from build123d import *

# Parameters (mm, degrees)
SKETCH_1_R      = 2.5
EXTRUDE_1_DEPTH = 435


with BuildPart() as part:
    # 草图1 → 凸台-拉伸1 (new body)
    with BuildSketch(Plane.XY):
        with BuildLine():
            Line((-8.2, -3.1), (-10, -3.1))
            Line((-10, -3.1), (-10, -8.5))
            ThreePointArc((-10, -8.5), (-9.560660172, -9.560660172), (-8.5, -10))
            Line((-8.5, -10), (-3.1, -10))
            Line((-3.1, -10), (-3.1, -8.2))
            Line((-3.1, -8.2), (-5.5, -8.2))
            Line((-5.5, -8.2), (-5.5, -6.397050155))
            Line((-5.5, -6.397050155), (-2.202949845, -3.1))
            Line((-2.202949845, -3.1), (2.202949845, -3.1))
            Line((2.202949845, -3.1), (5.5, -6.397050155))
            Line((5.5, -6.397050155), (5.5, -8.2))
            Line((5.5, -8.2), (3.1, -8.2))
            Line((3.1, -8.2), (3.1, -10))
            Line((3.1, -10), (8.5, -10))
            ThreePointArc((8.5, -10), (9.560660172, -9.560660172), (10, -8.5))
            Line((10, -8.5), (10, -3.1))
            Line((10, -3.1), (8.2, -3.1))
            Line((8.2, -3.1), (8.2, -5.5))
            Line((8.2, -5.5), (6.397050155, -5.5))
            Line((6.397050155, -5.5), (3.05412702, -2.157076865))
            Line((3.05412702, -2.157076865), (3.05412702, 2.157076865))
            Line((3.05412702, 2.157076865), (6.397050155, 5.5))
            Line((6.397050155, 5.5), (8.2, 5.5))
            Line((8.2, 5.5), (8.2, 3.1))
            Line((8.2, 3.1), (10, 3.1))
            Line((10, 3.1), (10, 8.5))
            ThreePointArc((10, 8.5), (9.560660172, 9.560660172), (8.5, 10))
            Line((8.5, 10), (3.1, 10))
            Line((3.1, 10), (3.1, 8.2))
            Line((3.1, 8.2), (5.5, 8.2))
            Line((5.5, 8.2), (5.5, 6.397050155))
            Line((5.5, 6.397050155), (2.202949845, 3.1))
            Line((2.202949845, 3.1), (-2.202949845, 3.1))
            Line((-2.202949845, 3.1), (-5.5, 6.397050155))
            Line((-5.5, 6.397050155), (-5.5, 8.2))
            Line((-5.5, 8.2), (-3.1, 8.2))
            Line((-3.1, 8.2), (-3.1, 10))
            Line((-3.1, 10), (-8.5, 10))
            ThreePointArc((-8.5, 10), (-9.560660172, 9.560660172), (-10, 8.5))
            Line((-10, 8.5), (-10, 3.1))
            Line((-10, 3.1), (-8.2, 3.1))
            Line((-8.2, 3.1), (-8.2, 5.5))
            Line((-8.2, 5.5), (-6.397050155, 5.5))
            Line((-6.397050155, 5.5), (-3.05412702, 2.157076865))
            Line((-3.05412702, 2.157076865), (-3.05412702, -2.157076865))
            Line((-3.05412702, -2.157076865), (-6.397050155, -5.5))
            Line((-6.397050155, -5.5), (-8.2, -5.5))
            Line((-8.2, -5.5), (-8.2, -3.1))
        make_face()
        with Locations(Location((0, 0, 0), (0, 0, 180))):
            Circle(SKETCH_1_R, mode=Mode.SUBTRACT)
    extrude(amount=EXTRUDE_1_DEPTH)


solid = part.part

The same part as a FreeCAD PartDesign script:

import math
import FreeCAD as App
import Part
import Sketcher
from FreeCAD import Vector

doc = App.newDocument("Part")
body = doc.addObject("PartDesign::Body", "Body")

sketch1 = body.newObject("Sketcher::SketchObject", "Sketch")
sketch1.AttachmentSupport = (doc.getObject("XY_Plane"), [""])
sketch1.MapMode = "FlatFace"
sketch1.addGeometry([
    Part.LineSegment(Vector(-8.2, -3.1, 0), Vector(-10, -3.1, 0)),
    Part.LineSegment(Vector(-10, -3.1, 0), Vector(-10, -8.5, 0)),
    Part.ArcOfCircle(Part.Circle(Vector(-8.5, -8.5, 0), Vector(0, 0, 1), 1.5), math.radians(180), math.radians(270)),
    Part.LineSegment(Vector(-8.5, -10, 0), Vector(-3.1, -10, 0)),
    Part.LineSegment(Vector(-3.1, -10, 0), Vector(-3.1, -8.2, 0)),
    Part.LineSegment(Vector(-3.1, -8.2, 0), Vector(-5.5, -8.2, 0)),
    Part.LineSegment(Vector(-5.5, -8.2, 0), Vector(-5.5, -6.4, 0)),
    Part.LineSegment(Vector(-5.5, -6.4, 0), Vector(-2.2, -3.1, 0)),
    Part.LineSegment(Vector(-2.2, -3.1, 0), Vector(2.2, -3.1, 0)),
    Part.LineSegment(Vector(2.2, -3.1, 0), Vector(5.5, -6.4, 0)),
    Part.LineSegment(Vector(5.5, -6.4, 0), Vector(5.5, -8.2, 0)),
    Part.LineSegment(Vector(5.5, -8.2, 0), Vector(3.1, -8.2, 0)),
    Part.LineSegment(Vector(3.1, -8.2, 0), Vector(3.1, -10, 0)),
    Part.LineSegment(Vector(3.1, -10, 0), Vector(8.5, -10, 0)),
    Part.ArcOfCircle(Part.Circle(Vector(8.5, -8.5, 0), Vector(0, 0, 1), 1.5), math.radians(-90), math.radians(0)),
    Part.LineSegment(Vector(10, -8.5, 0), Vector(10, -3.1, 0)),
    Part.LineSegment(Vector(10, -3.1, 0), Vector(8.2, -3.1, 0)),
    Part.LineSegment(Vector(8.2, -3.1, 0), Vector(8.2, -5.5, 0)),
    Part.LineSegment(Vector(8.2, -5.5, 0), Vector(6.4, -5.5, 0)),
    Part.LineSegment(Vector(6.4, -5.5, 0), Vector(3.1, -2.2, 0)),
    Part.LineSegment(Vector(3.1, -2.2, 0), Vector(3.1, 2.2, 0)),
    Part.LineSegment(Vector(3.1, 2.2, 0), Vector(6.4, 5.5, 0)),
    Part.LineSegment(Vector(6.4, 5.5, 0), Vector(8.2, 5.5, 0)),
    Part.LineSegment(Vector(8.2, 5.5, 0), Vector(8.2, 3.1, 0)),
    Part.LineSegment(Vector(8.2, 3.1, 0), Vector(10, 3.1, 0)),
    Part.LineSegment(Vector(10, 3.1, 0), Vector(10, 8.5, 0)),
    Part.ArcOfCircle(Part.Circle(Vector(8.5, 8.5, 0), Vector(0, 0, 1), 1.5), math.radians(0), math.radians(90)),
    Part.LineSegment(Vector(8.5, 10, 0), Vector(3.1, 10, 0)),
    Part.LineSegment(Vector(3.1, 10, 0), Vector(3.1, 8.2, 0)),
    Part.LineSegment(Vector(3.1, 8.2, 0), Vector(5.5, 8.2, 0)),
    Part.LineSegment(Vector(5.5, 8.2, 0), Vector(5.5, 6.4, 0)),
    Part.LineSegment(Vector(5.5, 6.4, 0), Vector(2.2, 3.1, 0)),
    Part.LineSegment(Vector(2.2, 3.1, 0), Vector(-2.2, 3.1, 0)),
    Part.LineSegment(Vector(-2.2, 3.1, 0), Vector(-5.5, 6.4, 0)),
    Part.LineSegment(Vector(-5.5, 6.4, 0), Vector(-5.5, 8.2, 0)),
    Part.LineSegment(Vector(-5.5, 8.2, 0), Vector(-3.1, 8.2, 0)),
    Part.LineSegment(Vector(-3.1, 8.2, 0), Vector(-3.1, 10, 0)),
    Part.LineSegment(Vector(-3.1, 10, 0), Vector(-8.5, 10, 0)),
    Part.ArcOfCircle(Part.Circle(Vector(-8.5, 8.5, 0), Vector(0, 0, 1), 1.5), math.radians(90), math.radians(180)),
    Part.LineSegment(Vector(-10, 8.5, 0), Vector(-10, 3.1, 0)),
    Part.LineSegment(Vector(-10, 3.1, 0), Vector(-8.2, 3.1, 0)),
    Part.LineSegment(Vector(-8.2, 3.1, 0), Vector(-8.2, 5.5, 0)),
    Part.LineSegment(Vector(-8.2, 5.5, 0), Vector(-6.4, 5.5, 0)),
    Part.LineSegment(Vector(-6.4, 5.5, 0), Vector(-3.1, 2.2, 0)),
    Part.LineSegment(Vector(-3.1, 2.2, 0), Vector(-3.1, -2.2, 0)),
    Part.LineSegment(Vector(-3.1, -2.2, 0), Vector(-6.4, -5.5, 0)),
    Part.LineSegment(Vector(-6.4, -5.5, 0), Vector(-8.2, -5.5, 0)),
    Part.LineSegment(Vector(-8.2, -5.5, 0), Vector(-8.2, -3.1, 0)),
    Part.Circle(Vector(0, 0, 0), Vector(0, 0, 1), 2.5),
], False)
sketch1.addConstraint([
    Sketcher.Constraint("Coincident", 0, 2, 1, 1),
    Sketcher.Constraint("Tangent", 1, 2, 2, 1),
    Sketcher.Constraint("Tangent", 2, 2, 3, 1),
    Sketcher.Constraint("Coincident", 3, 2, 4, 1),
    Sketcher.Constraint("Coincident", 4, 2, 5, 1),
    Sketcher.Constraint("Coincident", 5, 2, 6, 1),
    Sketcher.Constraint("Coincident", 6, 2, 7, 1),
    Sketcher.Constraint("Coincident", 7, 2, 8, 1),
    Sketcher.Constraint("Coincident", 8, 2, 9, 1),
    Sketcher.Constraint("Coincident", 9, 2, 10, 1),
    Sketcher.Constraint("Coincident", 10, 2, 11, 1),
    Sketcher.Constraint("Coincident", 11, 2, 12, 1),
    Sketcher.Constraint("Coincident", 12, 2, 13, 1),
    Sketcher.Constraint("Tangent", 13, 2, 14, 1),
    Sketcher.Constraint("Tangent", 14, 2, 15, 1),
    Sketcher.Constraint("Coincident", 15, 2, 16, 1),
    Sketcher.Constraint("Coincident", 16, 2, 17, 1),
    Sketcher.Constraint("Coincident", 17, 2, 18, 1),
    Sketcher.Constraint("Coincident", 18, 2, 19, 1),
    Sketcher.Constraint("Coincident", 19, 2, 20, 1),
    Sketcher.Constraint("Coincident", 20, 2, 21, 1),
    Sketcher.Constraint("Coincident", 21, 2, 22, 1),
    Sketcher.Constraint("Coincident", 22, 2, 23, 1),
    Sketcher.Constraint("Coincident", 23, 2, 24, 1),
    Sketcher.Constraint("Coincident", 24, 2, 25, 1),
    Sketcher.Constraint("Tangent", 25, 2, 26, 1),
    Sketcher.Constraint("Tangent", 26, 2, 27, 1),
    Sketcher.Constraint("Coincident", 27, 2, 28, 1),
    Sketcher.Constraint("Coincident", 28, 2, 29, 1),
    Sketcher.Constraint("Coincident", 29, 2, 30, 1),
    Sketcher.Constraint("Coincident", 30, 2, 31, 1),
    Sketcher.Constraint("Coincident", 31, 2, 32, 1),
    Sketcher.Constraint("Coincident", 32, 2, 33, 1),
    Sketcher.Constraint("Coincident", 33, 2, 34, 1),
    Sketcher.Constraint("Coincident", 34, 2, 35, 1),
    Sketcher.Constraint("Coincident", 35, 2, 36, 1),
    Sketcher.Constraint("Coincident", 36, 2, 37, 1),
    Sketcher.Constraint("Tangent", 37, 2, 38, 1),
    Sketcher.Constraint("Tangent", 38, 2, 39, 1),
    Sketcher.Constraint("Coincident", 39, 2, 40, 1),
    Sketcher.Constraint("Coincident", 40, 2, 41, 1),
    Sketcher.Constraint("Coincident", 41, 2, 42, 1),
    Sketcher.Constraint("Coincident", 42, 2, 43, 1),
    Sketcher.Constraint("Coincident", 43, 2, 44, 1),
    Sketcher.Constraint("Coincident", 44, 2, 45, 1),
    Sketcher.Constraint("Coincident", 45, 2, 46, 1),
    Sketcher.Constraint("Coincident", 46, 2, 47, 1),
    Sketcher.Constraint("Coincident", 47, 2, 0, 1),
    Sketcher.Constraint("Horizontal", 0),
    Sketcher.Constraint("Vertical", 1),
    Sketcher.Constraint("Horizontal", 3),
    Sketcher.Constraint("Vertical", 4),
    Sketcher.Constraint("Horizontal", 5),
    Sketcher.Constraint("Vertical", 6),
    Sketcher.Constraint("Horizontal", 8),
    Sketcher.Constraint("Vertical", 10),
    Sketcher.Constraint("Horizontal", 11),
    Sketcher.Constraint("Vertical", 12),
    Sketcher.Constraint("Horizontal", 13),
    Sketcher.Constraint("Vertical", 15),
    Sketcher.Constraint("Horizontal", 16),
    Sketcher.Constraint("Vertical", 17),
    Sketcher.Constraint("Horizontal", 18),
    Sketcher.Constraint("Vertical", 20),
    Sketcher.Constraint("Horizontal", 22),
    Sketcher.Constraint("Vertical", 23),
    Sketcher.Constraint("Horizontal", 24),
    Sketcher.Constraint("Vertical", 25),
    Sketcher.Constraint("Horizontal", 27),
    Sketcher.Constraint("Vertical", 28),
    Sketcher.Constraint("Horizontal", 29),
    Sketcher.Constraint("Vertical", 30),
    Sketcher.Constraint("Horizontal", 32),
    Sketcher.Constraint("Vertical", 34),
    Sketcher.Constraint("Horizontal", 35),
    Sketcher.Constraint("Vertical", 36),
    Sketcher.Constraint("Horizontal", 37),
    Sketcher.Constraint("Vertical", 39),
    Sketcher.Constraint("Horizontal", 40),
    Sketcher.Constraint("Vertical", 41),
    Sketcher.Constraint("Horizontal", 42),
    Sketcher.Constraint("Vertical", 44),
    Sketcher.Constraint("Horizontal", 46),
    Sketcher.Constraint("Vertical", 47),
    Sketcher.Constraint("Coincident", 48, 3, -1, 1),
    Sketcher.Constraint("Equal", 2, 14),
    Sketcher.Constraint("Equal", 14, 26),
    Sketcher.Constraint("Equal", 26, 38),
    Sketcher.Constraint("Symmetric", 2, 3, 26, 3, -1, 1),
    Sketcher.Constraint("Symmetric", 14, 3, 38, 3, -1, 1),
    Sketcher.Constraint("Symmetric", 4, 2, 28, 2, -1, 1),
    Sketcher.Constraint("Symmetric", 6, 2, 30, 2, -1, 1),
    Sketcher.Constraint("Symmetric", 7, 2, 31, 2, -1, 1),
    Sketcher.Constraint("Symmetric", 9, 2, 33, 2, -1, 1),
    Sketcher.Constraint("Symmetric", 11, 2, 35, 2, -1, 1),
    Sketcher.Constraint("Symmetric", 16, 2, 40, 2, -1, 1),
    Sketcher.Constraint("Symmetric", 18, 2, 42, 2, -1, 1),
    Sketcher.Constraint("Symmetric", 19, 2, 43, 2, -1, 1),
    Sketcher.Constraint("Symmetric", 21, 2, 45, 2, -1, 1),
    Sketcher.Constraint("Symmetric", 23, 2, 47, 2, -1, 1),
    Sketcher.Constraint("Symmetric", 2, 3, 14, 3, -2),
    Sketcher.Constraint("Symmetric", 6, 2, 9, 2, -2),
    Sketcher.Constraint("Symmetric", 4, 2, 11, 2, -2),
    Sketcher.Constraint("Symmetric", 23, 2, 40, 2, -2),
    Sketcher.Constraint("Symmetric", 21, 2, 42, 2, -2),
    Sketcher.Constraint("Perpendicular", 7, 9),
    Sketcher.Constraint("Parallel", 9, 19),
    Sketcher.Constraint("Perpendicular", 19, 21),
    Sketcher.Constraint("Perpendicular", 31, 33),
    Sketcher.Constraint("Perpendicular", 43, 45),
    Sketcher.Constraint("Horizontal", 0, 2, 7, 2),
    Sketcher.Constraint("Horizontal", 20, 2, 43, 2),
    Sketcher.Constraint("Equal", 37, 1),
    Sketcher.Constraint("Equal", 40, 4),
    Sketcher.Constraint("Equal", 46, 6),
    Sketcher.Constraint("Equal", 35, 17),
    Sketcher.Constraint("Diameter", 48, 5.0),
    Sketcher.Constraint("Radius", 2, 1.5),
    Sketcher.Constraint("DistanceX", 0, 2, 0, 1, 1.8),
    Sketcher.Constraint("DistanceX", 3, 1, 3, 2, 5.4),
    Sketcher.Constraint("DistanceX", 5, 2, 5, 1, 2.4),
    Sketcher.Constraint("DistanceX", 0, 2, -1, 1, 10.0),
    Sketcher.Constraint("DistanceY", 2, 2, -1, 1, 10.0),
    Sketcher.Constraint("DistanceX", 8, 1, 8, 2, 4.4059),
    Sketcher.Constraint("DistanceY", 20, 1, 20, 2, 4.314154),
])
pad1 = body.newObject("PartDesign::Pad", "Pad")
pad1.Profile = sketch1
pad1.Length = 435

doc.recompute()
